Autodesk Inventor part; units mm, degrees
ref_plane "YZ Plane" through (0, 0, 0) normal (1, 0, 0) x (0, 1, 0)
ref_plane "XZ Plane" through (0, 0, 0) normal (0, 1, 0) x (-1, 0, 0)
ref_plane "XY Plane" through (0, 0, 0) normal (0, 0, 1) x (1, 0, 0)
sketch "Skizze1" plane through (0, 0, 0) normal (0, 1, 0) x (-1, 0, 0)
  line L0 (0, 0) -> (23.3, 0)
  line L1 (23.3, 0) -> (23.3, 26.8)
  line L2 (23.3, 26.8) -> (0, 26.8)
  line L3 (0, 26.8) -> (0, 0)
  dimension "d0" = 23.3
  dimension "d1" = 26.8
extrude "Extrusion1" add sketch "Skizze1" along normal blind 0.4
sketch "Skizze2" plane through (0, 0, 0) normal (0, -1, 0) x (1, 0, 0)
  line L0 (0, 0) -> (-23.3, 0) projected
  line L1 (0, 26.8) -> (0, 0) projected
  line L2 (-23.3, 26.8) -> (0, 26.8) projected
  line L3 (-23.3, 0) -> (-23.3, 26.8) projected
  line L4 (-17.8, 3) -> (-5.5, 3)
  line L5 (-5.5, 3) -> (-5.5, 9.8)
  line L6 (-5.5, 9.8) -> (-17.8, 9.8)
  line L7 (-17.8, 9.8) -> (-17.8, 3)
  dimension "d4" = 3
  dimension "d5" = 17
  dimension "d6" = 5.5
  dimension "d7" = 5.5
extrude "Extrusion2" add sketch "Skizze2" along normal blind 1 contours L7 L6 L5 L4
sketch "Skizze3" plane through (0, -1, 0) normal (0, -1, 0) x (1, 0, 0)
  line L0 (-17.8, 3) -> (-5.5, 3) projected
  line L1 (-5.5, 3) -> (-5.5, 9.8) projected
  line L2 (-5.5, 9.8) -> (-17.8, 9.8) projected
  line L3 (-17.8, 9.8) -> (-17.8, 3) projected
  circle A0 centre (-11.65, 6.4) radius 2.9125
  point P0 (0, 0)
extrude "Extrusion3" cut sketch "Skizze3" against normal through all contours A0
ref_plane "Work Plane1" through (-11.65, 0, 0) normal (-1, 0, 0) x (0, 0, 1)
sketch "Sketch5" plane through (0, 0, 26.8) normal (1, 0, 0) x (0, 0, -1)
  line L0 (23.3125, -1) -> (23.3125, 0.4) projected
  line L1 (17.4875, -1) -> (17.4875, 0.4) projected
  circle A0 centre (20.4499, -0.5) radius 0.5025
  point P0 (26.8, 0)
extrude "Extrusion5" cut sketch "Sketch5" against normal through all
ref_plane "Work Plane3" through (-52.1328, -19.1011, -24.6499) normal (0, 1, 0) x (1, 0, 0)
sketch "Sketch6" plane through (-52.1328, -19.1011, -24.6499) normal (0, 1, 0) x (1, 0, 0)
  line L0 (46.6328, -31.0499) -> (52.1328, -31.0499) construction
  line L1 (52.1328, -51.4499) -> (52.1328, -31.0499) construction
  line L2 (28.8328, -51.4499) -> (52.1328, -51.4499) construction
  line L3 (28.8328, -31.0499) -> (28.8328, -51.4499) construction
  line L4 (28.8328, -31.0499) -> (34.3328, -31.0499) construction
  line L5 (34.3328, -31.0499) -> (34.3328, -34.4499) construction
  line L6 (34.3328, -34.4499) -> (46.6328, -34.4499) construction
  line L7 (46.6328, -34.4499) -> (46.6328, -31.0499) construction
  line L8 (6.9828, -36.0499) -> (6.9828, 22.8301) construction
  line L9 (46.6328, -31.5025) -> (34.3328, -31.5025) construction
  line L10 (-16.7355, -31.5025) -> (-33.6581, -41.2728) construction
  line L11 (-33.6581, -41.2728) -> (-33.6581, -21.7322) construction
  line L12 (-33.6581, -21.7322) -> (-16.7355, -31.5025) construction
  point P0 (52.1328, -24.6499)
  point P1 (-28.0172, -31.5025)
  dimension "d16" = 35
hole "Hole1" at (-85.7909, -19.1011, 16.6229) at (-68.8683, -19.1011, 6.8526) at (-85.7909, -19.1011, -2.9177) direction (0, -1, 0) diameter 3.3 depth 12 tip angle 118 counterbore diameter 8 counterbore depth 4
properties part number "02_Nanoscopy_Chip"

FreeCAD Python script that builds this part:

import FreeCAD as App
import Part
import Sketcher
Q = App.Units.Quantity


def add_polygon(sketch, points):
    """Adds a closed chain of lines whose ends are joined by coincident constraints."""
    first, n = sketch.GeometryCount, len(points)
    for a, b in zip(points, points[1:] + points[:1]):
        sketch.addGeometry(Part.LineSegment(App.Vector(*a, 0), App.Vector(*b, 0)), False)
    for i in range(n):
        sketch.addConstraint(Sketcher.Constraint("Coincident", first + i, 2, first + (i + 1) % n, 1))

doc = App.newDocument("Part")
body = doc.addObject("PartDesign::Body", "Body")

# Sketch on XZ plane
sketch1 = body.newObject("Sketcher::SketchObject", "Sketch")
sketch1.AttachmentSupport = (doc.getObject("XZ_Plane"), [""])
sketch1.MapMode = "FlatFace"
add_polygon(sketch1, [(0, 27), (0, 0), (-23, 0), (-23, 27)])  # lines 0-3
sketch1.addConstraint([
    Sketcher.Constraint("Vertical", 0),
    Sketcher.Constraint("Horizontal", 1),
    Sketcher.Constraint("Vertical", 2),
    Sketcher.Constraint("Horizontal", 3),
    Sketcher.Constraint("Coincident", 0, 2, -1, 1),
    Sketcher.Constraint("DistanceX", 1, 2, 1, 1, Q("23.3 mm")),
    Sketcher.Constraint("DistanceY", 0, 2, 0, 1, Q("26.8 mm")),
])
pad1 = body.newObject("PartDesign::Pad", "Pad")
pad1.Profile = sketch1
pad1.Length = 0.4
pad1.Reversed = True

# Sketch on XZ plane
sketch2 = body.newObject("Sketcher::SketchObject", "Sketch001")
sketch2.AttachmentSupport = (doc.getObject("XZ_Plane"), [""])
sketch2.MapMode = "FlatFace"
add_polygon(sketch2, [(-18, 10), (-18, 3), (-6, 3), (-6, 10)])  # lines 0-3
sketch2.addConstraint([
    Sketcher.Constraint("Vertical", 0),
    Sketcher.Constraint("Horizontal", 1),
    Sketcher.Constraint("Vertical", 2),
    Sketcher.Constraint("Horizontal", 3),
    Sketcher.Constraint("DistanceY", -1, 1, 0, 2, Q("3 mm")),
    Sketcher.Constraint("DistanceX", 1, 2, -1, 1, Q("5.5 mm")),
    Sketcher.Constraint("DistanceX", 1, 1, 1, 2, Q("12.3 mm")),
    Sketcher.Constraint("DistanceY", 0, 2, 0, 1, Q("6.8 mm")),
])
pad2 = body.newObject("PartDesign::Pad", "Pad001")
pad2.Profile = sketch2
pad2.Length = 1

# Sketch on XZ plane
sketch3 = body.newObject("Sketcher::SketchObject", "Sketch002")
sketch3.AttachmentSupport = (doc.getObject("XZ_Plane"), [""])
sketch3.MapMode = "FlatFace"
sketch3.AttachmentOffset = App.Placement(App.Vector(0, 0, 1), App.Rotation())
sketch3.addGeometry(Part.Circle(App.Vector(-11.7, 6.4, 0), App.Vector(0, 0, 1), 2.9), False)
sketch3.addConstraint([
    Sketcher.Constraint("Diameter", 0, Q("5.825 mm")),
    Sketcher.Constraint("DistanceY", -1, 1, 0, 3, Q("6.4 mm")),
    Sketcher.Constraint("DistanceX", 0, 3, -1, 1, Q("11.65 mm")),
])
pocket1 = body.newObject("PartDesign::Pocket", "Pocket")
pocket1.Profile = sketch3
pocket1.Type = "ThroughAll"

# Sketch on YZ plane
sketch4 = body.newObject("Sketcher::SketchObject", "Sketch003")
sketch4.AttachmentSupport = (doc.getObject("YZ_Plane"), [""])
sketch4.MapMode = "FlatFace"
sketch4.addGeometry(Part.Circle(App.Vector(-0.5, 6.4, 0), App.Vector(0, 0, 1), 0.5), False)
sketch4.addConstraint([
    Sketcher.Constraint("Diameter", 0, Q("1.005 mm")),
    Sketcher.Constraint("DistanceX", 0, 3, -1, 1, Q("0.5 mm")),
    Sketcher.Constraint("DistanceY", -1, 1, 0, 3, Q("6.35 mm")),
])
pocket2 = body.newObject("PartDesign::Pocket", "Pocket001")
pocket2.Profile = sketch4
pocket2.Type = "ThroughAll"

# Sketch on XZ plane
sketch5 = body.newObject("Sketcher::SketchObject", "Sketch004")
sketch5.AttachmentSupport = (doc.getObject("XZ_Plane"), [""])
sketch5.MapMode = "FlatFace"
sketch5.AttachmentOffset = App.Placement(App.Vector(0, 0, 19.1011), App.Rotation())
sketch5.addGeometry([
    Part.Circle(App.Vector(-85.8, 16.6, 0), App.Vector(0, 0, 1), 1.6),
    Part.Circle(App.Vector(-68.9, 6.9, 0), App.Vector(0, 0, 1), 1.6),
    Part.Circle(App.Vector(-85.8, -2.9, 0), App.Vector(0, 0, 1), 1.6),
], False)
sketch5.addConstraint([
    Sketcher.Constraint("Equal", 0, 1),
    Sketcher.Constraint("Equal", 1, 2),
    Sketcher.Constraint("Vertical", 0, 3, 2, 3),
    Sketcher.Constraint("Diameter", 0, Q("3.3 mm")),
    Sketcher.Constraint("DistanceX", 0, 3, -1, 1, Q("85.791 mm")),
    Sketcher.Constraint("DistanceY", -1, 1, 0, 3, Q("16.623 mm")),
    Sketcher.Constraint("DistanceX", 1, 3, -1, 1, Q("68.8683 mm")),
    Sketcher.Constraint("DistanceY", -1, 1, 1, 3, Q("6.8526 mm")),
    Sketcher.Constraint("DistanceY", 2, 3, -1, 1, Q("2.9177 mm")),
])
doc.recompute()
hole = body.newObject("PartDesign::Hole", "Hole")
hole.Profile = sketch5
hole.ThreadType = "None"
hole.Diameter = 3.3
hole.DepthType = "Dimension"
hole.Depth = 12
hole.DrillPoint = "Angled"
hole.DrillPointAngle = 118
hole.HoleCutType = "Counterbore"
hole.HoleCutDiameter = 8
hole.HoleCutDepth = 4
hole.Reversed = True

doc.recompute()
